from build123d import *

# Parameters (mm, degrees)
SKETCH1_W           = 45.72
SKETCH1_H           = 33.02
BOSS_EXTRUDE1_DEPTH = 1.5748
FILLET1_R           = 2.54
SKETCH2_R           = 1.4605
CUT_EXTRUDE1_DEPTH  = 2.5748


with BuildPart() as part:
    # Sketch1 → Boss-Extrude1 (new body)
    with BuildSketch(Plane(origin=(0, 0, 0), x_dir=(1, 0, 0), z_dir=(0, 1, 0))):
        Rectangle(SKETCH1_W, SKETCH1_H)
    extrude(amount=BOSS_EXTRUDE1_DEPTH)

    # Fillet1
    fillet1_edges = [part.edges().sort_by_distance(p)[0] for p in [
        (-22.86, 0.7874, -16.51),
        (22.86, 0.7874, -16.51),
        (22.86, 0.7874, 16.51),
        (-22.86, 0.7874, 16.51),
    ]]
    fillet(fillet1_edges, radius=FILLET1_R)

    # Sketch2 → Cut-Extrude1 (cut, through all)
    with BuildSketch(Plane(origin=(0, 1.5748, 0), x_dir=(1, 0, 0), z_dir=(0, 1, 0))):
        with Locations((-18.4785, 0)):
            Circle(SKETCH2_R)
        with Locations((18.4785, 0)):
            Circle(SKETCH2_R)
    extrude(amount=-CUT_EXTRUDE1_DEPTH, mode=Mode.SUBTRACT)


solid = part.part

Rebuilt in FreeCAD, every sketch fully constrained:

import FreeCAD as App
import Part
import Sketcher
from FreeCAD import Vector
Q = App.Units.Quantity


def edges_at(feature, points):
    """Names of the edges that pass closest to the given points."""
    edges = feature.Shape.Edges
    near = lambda p: min(range(len(edges)), key=lambda i: edges[i].distToShape(Part.Vertex(*p))[0])
    return sorted({f"Edge{near(p) + 1}" for p in points})


def add_polygon(sketch, points):
    """Adds a closed chain of lines whose ends are joined by coincident constraints."""
    first, n = sketch.GeometryCount, len(points)
    for a, b in zip(points, points[1:] + points[:1]):
        sketch.addGeometry(Part.LineSegment(App.Vector(*a, 0), App.Vector(*b, 0)), False)
    for i in range(n):
        sketch.addConstraint(Sketcher.Constraint("Coincident", first + i, 2, first + (i + 1) % n, 1))

doc = App.newDocument("Part")
body = doc.addObject("PartDesign::Body", "Body")

sketch1 = body.newObject("Sketcher::SketchObject", "Sketch")
sketch1.AttachmentSupport = (doc.getObject("XZ_Plane"), [""])
sketch1.MapMode = "FlatFace"
add_polygon(sketch1, [(-23, -17), (-23, 17), (23, 17), (23, -17)])
sketch1.addConstraint(Sketcher.Constraint("Vertical", 0))
sketch1.addConstraint(Sketcher.Constraint("Horizontal", 1))
sketch1.addConstraint(Sketcher.Constraint("Vertical", 2))
sketch1.addConstraint(Sketcher.Constraint("Horizontal", 3))
sketch1.addConstraint(Sketcher.Constraint("Symmetric", 0, 2, 2, 2, -1, 1))
sketch1.addConstraint(Sketcher.Constraint("DistanceX", 1, 1, 1, 2, Q("1.8 in")))
sketch1.addConstraint(Sketcher.Constraint("DistanceY", 0, 1, 0, 2, Q("1.3 in")))
pad1 = body.newObject("PartDesign::Pad", "Pad")
pad1.Profile = sketch1
pad1.Length = Q("0.062 in")
pad1.Reversed = True
doc.recompute()

fillet = body.newObject("PartDesign::Fillet", "Fillet")
fillet.Base = (pad1, edges_at(pad1, [
    (-22.86, 0.787, -16.51),
    (22.86, 0.787, -16.51),
    (22.86, 0.787, 16.51),
    (-22.86, 0.787, 16.51),
]))
fillet.Radius = Q("0.1 in")

sketch2 = body.newObject("Sketcher::SketchObject", "Sketch001")
sketch2.AttachmentSupport = (doc.getObject("XZ_Plane"), [""])
sketch2.MapMode = "FlatFace"
sketch2.AttachmentOffset = App.Placement(Vector(0, 0, -0.062 * 25.4), App.Rotation())
sketch2.addGeometry(Part.Circle(Vector(-18.5, 0, 0), Vector(0, 0, 1), 1.5), False)
sketch2.addGeometry(Part.Circle(Vector(18.5, 0, 0), Vector(0, 0, 1), 1.5), False)
sketch2.addConstraint(Sketcher.Constraint("Equal", 0, 1))
sketch2.addConstraint(Sketcher.Constraint("Symmetric", 0, 3, 1, 3, -1, 1))
sketch2.addConstraint(Sketcher.Constraint("PointOnObject", 0, 3, -1))
sketch2.addConstraint(Sketcher.Constraint("Diameter", 0, Q("0.115 in")))
sketch2.addConstraint(Sketcher.Constraint("DistanceX", 0, 3, 1, 3, Q("1.455 in")))
pocket1 = body.newObject("PartDesign::Pocket", "Pocket")
pocket1.Profile = sketch2
pocket1.Type = "ThroughAll"
pocket1.Reversed = True

doc.recompute()
